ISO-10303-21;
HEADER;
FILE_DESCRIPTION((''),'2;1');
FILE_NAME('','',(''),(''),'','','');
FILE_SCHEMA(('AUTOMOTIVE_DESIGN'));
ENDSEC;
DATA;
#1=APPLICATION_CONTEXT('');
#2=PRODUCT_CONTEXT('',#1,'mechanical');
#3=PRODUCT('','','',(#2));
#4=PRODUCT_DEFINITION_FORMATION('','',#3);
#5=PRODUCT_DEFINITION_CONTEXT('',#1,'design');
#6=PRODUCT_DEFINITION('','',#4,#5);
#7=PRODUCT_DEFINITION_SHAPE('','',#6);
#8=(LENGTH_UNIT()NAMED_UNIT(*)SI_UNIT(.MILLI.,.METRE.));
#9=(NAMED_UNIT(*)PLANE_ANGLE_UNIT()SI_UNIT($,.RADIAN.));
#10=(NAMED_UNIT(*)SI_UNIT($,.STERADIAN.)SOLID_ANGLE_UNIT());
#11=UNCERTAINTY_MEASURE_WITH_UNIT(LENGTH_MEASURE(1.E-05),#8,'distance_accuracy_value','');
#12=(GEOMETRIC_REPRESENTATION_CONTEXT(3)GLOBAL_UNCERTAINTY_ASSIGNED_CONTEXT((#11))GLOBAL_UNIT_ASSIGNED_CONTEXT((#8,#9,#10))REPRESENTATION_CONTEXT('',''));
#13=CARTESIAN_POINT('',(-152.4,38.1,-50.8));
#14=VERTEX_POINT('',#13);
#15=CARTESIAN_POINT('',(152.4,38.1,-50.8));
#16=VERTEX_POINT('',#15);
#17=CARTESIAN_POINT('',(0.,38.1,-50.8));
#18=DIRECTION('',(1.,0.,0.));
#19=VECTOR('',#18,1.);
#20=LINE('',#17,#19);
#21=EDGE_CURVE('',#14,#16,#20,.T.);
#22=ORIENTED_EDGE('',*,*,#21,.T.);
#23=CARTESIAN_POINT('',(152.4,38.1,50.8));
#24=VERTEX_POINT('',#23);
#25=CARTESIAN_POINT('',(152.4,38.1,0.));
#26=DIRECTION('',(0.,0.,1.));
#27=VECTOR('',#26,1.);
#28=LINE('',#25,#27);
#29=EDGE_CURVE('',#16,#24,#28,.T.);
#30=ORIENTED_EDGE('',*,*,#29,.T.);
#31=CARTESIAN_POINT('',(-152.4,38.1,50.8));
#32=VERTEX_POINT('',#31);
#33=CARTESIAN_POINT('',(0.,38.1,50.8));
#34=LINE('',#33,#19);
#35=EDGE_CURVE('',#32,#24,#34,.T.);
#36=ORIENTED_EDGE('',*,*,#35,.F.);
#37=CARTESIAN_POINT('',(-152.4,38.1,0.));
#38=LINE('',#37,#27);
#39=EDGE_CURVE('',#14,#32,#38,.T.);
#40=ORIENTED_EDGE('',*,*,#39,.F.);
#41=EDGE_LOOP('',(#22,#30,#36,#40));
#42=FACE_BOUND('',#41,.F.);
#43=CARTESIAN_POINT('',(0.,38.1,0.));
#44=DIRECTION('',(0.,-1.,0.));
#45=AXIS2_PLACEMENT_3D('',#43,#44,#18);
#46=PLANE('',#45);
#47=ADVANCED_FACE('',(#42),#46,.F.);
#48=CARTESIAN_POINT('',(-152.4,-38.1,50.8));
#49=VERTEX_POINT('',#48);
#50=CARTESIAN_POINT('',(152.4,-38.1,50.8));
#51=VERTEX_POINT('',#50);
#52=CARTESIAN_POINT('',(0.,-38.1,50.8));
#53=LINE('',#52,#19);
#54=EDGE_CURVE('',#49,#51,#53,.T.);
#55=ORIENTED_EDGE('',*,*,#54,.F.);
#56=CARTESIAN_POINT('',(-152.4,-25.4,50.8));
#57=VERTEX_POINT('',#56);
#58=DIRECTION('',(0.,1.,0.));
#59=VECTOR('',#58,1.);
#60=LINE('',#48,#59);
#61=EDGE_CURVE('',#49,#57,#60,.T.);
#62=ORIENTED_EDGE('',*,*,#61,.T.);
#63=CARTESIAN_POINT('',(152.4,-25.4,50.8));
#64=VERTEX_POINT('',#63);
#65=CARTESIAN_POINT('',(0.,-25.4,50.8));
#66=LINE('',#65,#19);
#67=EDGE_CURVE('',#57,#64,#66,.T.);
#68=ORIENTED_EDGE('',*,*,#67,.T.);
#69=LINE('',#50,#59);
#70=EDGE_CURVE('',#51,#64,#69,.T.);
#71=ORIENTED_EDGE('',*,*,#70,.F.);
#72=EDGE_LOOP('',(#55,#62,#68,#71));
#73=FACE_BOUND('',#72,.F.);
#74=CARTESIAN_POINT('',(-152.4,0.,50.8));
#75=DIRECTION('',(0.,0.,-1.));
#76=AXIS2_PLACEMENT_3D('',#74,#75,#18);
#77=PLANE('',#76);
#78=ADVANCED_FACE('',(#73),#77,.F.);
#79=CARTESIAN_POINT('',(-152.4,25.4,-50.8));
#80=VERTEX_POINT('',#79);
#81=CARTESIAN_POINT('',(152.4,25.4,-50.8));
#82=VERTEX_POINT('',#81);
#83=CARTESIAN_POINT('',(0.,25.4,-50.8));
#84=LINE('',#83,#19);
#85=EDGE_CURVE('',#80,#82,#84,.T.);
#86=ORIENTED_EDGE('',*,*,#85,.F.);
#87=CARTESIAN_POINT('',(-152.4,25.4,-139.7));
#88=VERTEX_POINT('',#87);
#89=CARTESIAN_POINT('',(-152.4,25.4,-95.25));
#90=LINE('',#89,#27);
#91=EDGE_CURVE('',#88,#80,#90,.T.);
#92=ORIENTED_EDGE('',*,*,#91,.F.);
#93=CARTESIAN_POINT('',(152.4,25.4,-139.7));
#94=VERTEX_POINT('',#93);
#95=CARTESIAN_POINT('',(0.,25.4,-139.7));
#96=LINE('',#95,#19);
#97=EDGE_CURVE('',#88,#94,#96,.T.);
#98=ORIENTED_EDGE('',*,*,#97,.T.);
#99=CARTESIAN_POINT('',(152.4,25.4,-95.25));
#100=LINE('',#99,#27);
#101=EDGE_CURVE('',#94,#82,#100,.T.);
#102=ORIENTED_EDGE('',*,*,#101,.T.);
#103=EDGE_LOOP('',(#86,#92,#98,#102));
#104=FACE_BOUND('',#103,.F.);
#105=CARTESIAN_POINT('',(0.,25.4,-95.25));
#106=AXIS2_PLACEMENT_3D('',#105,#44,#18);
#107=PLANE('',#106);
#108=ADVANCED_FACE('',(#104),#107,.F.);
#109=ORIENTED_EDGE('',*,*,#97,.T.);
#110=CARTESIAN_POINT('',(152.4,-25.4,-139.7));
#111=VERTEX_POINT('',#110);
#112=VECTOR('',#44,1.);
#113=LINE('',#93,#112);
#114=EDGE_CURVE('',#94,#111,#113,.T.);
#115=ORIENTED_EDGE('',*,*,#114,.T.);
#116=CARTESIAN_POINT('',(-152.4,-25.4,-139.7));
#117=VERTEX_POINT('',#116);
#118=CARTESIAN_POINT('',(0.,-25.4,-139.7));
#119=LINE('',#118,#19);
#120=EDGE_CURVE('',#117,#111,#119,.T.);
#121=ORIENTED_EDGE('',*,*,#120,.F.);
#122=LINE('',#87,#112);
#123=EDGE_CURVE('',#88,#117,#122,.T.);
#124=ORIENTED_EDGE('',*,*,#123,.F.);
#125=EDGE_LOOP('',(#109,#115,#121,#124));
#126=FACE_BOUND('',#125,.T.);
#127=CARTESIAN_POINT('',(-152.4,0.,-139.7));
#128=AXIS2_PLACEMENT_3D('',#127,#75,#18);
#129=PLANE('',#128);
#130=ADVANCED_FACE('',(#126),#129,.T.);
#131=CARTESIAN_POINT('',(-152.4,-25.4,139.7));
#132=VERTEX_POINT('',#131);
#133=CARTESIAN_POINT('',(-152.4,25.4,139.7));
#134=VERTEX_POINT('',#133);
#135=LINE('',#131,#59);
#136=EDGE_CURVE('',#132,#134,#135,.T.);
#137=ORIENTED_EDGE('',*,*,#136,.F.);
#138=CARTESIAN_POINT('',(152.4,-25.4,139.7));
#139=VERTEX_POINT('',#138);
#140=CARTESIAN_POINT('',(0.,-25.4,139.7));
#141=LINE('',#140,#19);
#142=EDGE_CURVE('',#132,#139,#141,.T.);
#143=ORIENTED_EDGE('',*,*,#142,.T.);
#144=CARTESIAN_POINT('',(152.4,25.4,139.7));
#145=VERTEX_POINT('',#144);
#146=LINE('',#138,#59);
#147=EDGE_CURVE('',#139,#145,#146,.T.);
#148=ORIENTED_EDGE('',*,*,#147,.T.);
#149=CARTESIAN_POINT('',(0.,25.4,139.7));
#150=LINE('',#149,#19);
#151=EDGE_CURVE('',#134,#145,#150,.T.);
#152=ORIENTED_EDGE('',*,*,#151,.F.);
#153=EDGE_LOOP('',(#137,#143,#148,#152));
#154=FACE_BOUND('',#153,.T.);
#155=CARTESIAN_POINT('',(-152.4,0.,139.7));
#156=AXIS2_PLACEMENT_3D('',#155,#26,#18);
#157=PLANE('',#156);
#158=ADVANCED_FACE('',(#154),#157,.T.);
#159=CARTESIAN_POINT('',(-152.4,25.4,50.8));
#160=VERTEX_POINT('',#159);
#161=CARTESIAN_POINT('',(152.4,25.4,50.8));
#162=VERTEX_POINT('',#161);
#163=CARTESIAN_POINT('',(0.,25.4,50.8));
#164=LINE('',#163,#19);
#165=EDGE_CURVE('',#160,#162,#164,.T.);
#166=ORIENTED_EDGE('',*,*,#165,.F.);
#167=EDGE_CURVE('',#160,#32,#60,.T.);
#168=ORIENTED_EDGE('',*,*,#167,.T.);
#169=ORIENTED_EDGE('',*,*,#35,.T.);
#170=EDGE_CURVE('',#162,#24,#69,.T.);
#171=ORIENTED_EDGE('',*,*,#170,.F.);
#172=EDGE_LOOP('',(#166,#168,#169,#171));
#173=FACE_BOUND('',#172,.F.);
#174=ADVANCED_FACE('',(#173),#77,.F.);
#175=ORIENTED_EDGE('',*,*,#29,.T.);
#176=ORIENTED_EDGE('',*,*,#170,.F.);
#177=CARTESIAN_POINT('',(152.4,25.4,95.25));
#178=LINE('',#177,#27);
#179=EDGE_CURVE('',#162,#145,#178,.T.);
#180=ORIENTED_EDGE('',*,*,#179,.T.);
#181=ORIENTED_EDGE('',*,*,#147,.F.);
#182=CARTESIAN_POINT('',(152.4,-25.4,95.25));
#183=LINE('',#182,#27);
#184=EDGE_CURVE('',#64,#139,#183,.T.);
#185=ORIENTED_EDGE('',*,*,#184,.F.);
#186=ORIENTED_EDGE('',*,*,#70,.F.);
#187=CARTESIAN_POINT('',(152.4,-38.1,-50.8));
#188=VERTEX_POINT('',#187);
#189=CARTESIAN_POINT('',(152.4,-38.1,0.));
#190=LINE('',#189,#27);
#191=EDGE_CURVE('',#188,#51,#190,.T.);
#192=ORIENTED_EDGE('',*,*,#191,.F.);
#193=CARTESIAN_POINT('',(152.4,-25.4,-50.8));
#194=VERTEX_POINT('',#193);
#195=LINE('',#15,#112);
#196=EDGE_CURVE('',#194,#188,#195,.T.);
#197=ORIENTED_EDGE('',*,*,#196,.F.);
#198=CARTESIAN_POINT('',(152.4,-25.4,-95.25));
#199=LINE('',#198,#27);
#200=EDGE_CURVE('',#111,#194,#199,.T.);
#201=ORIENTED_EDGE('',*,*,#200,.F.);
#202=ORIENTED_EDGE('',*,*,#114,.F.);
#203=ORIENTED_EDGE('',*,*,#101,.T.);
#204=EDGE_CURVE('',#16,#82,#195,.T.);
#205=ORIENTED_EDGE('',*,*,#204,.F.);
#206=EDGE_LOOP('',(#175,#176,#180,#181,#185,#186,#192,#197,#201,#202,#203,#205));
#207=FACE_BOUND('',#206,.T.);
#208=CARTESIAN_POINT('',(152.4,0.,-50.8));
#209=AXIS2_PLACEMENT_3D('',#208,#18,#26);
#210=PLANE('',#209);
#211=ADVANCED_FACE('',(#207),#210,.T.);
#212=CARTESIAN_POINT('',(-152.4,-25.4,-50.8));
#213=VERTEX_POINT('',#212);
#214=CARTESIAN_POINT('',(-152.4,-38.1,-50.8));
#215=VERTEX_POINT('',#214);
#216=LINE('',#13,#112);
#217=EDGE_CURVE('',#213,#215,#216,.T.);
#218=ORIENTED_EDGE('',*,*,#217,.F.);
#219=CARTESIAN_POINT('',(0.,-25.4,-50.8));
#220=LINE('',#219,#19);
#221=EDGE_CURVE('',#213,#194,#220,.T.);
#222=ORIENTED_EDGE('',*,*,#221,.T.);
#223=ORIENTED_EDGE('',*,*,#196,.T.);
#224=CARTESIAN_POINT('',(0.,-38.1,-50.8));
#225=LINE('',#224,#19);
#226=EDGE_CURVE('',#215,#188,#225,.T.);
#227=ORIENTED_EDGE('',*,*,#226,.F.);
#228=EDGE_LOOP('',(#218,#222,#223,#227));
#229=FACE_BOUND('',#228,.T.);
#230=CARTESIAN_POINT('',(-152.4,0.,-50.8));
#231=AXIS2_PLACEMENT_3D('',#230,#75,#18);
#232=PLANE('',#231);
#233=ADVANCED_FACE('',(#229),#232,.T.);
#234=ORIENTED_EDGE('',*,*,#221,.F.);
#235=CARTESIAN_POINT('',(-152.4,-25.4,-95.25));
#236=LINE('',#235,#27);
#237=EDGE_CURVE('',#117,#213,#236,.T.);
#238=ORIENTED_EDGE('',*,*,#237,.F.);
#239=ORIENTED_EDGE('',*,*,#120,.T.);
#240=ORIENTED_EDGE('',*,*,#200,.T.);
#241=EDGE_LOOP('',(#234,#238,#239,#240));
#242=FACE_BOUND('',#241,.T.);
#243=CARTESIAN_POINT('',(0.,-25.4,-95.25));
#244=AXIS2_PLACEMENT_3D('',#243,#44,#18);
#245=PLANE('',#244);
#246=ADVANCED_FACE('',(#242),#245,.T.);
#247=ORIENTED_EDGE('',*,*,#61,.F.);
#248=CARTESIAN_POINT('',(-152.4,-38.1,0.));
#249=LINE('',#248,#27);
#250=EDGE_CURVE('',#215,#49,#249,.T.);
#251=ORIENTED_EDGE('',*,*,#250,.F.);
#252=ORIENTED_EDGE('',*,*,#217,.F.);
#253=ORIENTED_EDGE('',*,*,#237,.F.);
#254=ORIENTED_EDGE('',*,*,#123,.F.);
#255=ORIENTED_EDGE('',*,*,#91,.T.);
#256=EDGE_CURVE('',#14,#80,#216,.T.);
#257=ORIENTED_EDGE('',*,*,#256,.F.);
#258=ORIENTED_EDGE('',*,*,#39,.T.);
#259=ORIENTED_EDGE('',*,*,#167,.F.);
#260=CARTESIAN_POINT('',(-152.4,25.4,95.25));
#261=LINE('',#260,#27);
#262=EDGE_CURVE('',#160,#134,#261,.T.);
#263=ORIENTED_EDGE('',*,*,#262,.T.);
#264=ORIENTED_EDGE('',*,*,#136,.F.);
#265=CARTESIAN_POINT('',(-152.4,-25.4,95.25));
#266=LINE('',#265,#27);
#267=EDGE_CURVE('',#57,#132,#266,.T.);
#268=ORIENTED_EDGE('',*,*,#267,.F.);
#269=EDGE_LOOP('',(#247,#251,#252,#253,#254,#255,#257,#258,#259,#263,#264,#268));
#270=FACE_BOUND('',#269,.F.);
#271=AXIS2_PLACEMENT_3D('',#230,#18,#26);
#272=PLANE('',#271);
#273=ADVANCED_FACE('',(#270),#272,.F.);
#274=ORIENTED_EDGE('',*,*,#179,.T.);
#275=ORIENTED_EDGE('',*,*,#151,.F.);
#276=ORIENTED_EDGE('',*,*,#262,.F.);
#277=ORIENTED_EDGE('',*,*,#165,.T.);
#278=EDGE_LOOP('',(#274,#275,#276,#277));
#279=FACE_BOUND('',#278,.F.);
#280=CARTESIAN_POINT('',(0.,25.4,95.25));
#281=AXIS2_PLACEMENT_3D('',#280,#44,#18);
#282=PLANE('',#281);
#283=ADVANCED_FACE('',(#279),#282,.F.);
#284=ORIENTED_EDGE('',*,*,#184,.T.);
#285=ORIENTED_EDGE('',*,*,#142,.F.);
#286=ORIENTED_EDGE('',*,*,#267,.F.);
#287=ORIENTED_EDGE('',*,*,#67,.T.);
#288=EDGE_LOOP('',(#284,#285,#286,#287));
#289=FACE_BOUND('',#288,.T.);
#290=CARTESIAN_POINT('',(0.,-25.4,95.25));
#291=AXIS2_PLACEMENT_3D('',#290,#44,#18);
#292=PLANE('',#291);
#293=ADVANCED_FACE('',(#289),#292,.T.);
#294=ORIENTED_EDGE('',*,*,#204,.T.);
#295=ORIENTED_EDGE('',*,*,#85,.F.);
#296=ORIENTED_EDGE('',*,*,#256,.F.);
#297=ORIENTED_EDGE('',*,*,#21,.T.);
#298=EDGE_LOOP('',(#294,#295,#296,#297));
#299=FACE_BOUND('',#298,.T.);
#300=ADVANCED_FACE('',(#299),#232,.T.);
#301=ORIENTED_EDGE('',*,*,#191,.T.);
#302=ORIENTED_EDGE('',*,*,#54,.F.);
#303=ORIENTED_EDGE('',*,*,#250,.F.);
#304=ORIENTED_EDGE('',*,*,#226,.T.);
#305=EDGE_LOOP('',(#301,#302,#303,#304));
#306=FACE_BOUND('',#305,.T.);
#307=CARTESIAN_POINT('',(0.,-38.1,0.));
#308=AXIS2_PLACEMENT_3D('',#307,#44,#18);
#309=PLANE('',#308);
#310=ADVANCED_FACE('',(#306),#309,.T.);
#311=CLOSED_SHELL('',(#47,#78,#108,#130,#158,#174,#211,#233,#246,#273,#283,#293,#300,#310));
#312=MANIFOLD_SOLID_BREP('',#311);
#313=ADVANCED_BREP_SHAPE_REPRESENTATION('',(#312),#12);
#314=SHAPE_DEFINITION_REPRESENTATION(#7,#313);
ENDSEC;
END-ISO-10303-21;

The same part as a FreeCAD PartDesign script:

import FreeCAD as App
import Part
import Sketcher
Q = App.Units.Quantity

doc = App.newDocument("Part")
body = doc.addObject("PartDesign::Body", "Body")

# Sketch on XZ plane
sketch1 = doc.addObject("Sketcher::SketchObject", "Sketch")
body.addObject(sketch1)
sketch1.AttachmentSupport = (doc.XZ_Plane, [""])
sketch1.MapMode = "FlatFace"
sketch1.addGeometry(Part.LineSegment(App.Vector(-152, 51, 0), App.Vector(-152, -51, 0)), False)
sketch1.addGeometry(Part.LineSegment(App.Vector(-152, -51, 0), App.Vector(152, -51, 0)), False)
sketch1.addGeometry(Part.LineSegment(App.Vector(152, -51, 0), App.Vector(152, 51, 0)), False)
sketch1.addGeometry(Part.LineSegment(App.Vector(152, 51, 0), App.Vector(-152, 51, 0)), False)
sketch1.addConstraint(Sketcher.Constraint("Coincident", 0, 2, 1, 1))
sketch1.addConstraint(Sketcher.Constraint("Coincident", 1, 2, 2, 1))
sketch1.addConstraint(Sketcher.Constraint("Coincident", 2, 2, 3, 1))
sketch1.addConstraint(Sketcher.Constraint("Coincident", 3, 2, 0, 1))
sketch1.addConstraint(Sketcher.Constraint("Vertical", 0))
sketch1.addConstraint(Sketcher.Constraint("Horizontal", 1))
sketch1.addConstraint(Sketcher.Constraint("Vertical", 2))
sketch1.addConstraint(Sketcher.Constraint("Horizontal", 3))
sketch1.addConstraint(Sketcher.Constraint("Symmetric", 0, 2, 2, 2, -1, 1))
sketch1.addConstraint(Sketcher.Constraint("DistanceX", 1, 1, 1, 2, Q("12 in")))
sketch1.addConstraint(Sketcher.Constraint("DistanceY", 0, 2, 0, 1, Q("4 in")))
pad1 = doc.addObject("PartDesign::Pad", "Pad")
body.addObject(pad1)
pad1.Profile = sketch1
pad1.Length = Q("3 in")
pad1.Midplane = True

# Sketch on XZ plane
sketch2 = doc.addObject("Sketcher::SketchObject", "Sketch001")
body.addObject(sketch2)
sketch2.AttachmentSupport = (doc.XZ_Plane, [""])
sketch2.MapMode = "FlatFace"
sketch2.addGeometry(Part.LineSegment(App.Vector(-152, 140, 0), App.Vector(-152, 51, 0)), False)
sketch2.addGeometry(Part.LineSegment(App.Vector(-152, 51, 0), App.Vector(152, 51, 0)), False)
sketch2.addGeometry(Part.LineSegment(App.Vector(152, 51, 0), App.Vector(152, 140, 0)), False)
sketch2.addGeometry(Part.LineSegment(App.Vector(152, 140, 0), App.Vector(-152, 140, 0)), False)
sketch2.addGeometry(Part.LineSegment(App.Vector(-152, -51, 0), App.Vector(-152, -140, 0)), False)
sketch2.addGeometry(Part.LineSegment(App.Vector(-152, -140, 0), App.Vector(152, -140, 0)), False)
sketch2.addGeometry(Part.LineSegment(App.Vector(152, -140, 0), App.Vector(152, -51, 0)), False)
sketch2.addGeometry(Part.LineSegment(App.Vector(152, -51, 0), App.Vector(-152, -51, 0)), False)
sketch2.addConstraint(Sketcher.Constraint("Coincident", 0, 2, 1, 1))
sketch2.addConstraint(Sketcher.Constraint("Coincident", 1, 2, 2, 1))
sketch2.addConstraint(Sketcher.Constraint("Coincident", 2, 2, 3, 1))
sketch2.addConstraint(Sketcher.Constraint("Coincident", 3, 2, 0, 1))
sketch2.addConstraint(Sketcher.Constraint("Coincident", 4, 2, 5, 1))
sketch2.addConstraint(Sketcher.Constraint("Coincident", 5, 2, 6, 1))
sketch2.addConstraint(Sketcher.Constraint("Coincident", 6, 2, 7, 1))
sketch2.addConstraint(Sketcher.Constraint("Coincident", 7, 2, 4, 1))
sketch2.addConstraint(Sketcher.Constraint("Vertical", 0))
sketch2.addConstraint(Sketcher.Constraint("Horizontal", 1))
sketch2.addConstraint(Sketcher.Constraint("Vertical", 2))
sketch2.addConstraint(Sketcher.Constraint("Horizontal", 3))
sketch2.addConstraint(Sketcher.Constraint("Vertical", 4))
sketch2.addConstraint(Sketcher.Constraint("Horizontal", 5))
sketch2.addConstraint(Sketcher.Constraint("Vertical", 6))
sketch2.addConstraint(Sketcher.Constraint("Horizontal", 7))
sketch2.addConstraint(Sketcher.Constraint("Symmetric", 2, 2, 4, 2, -1, 1))
sketch2.addConstraint(Sketcher.Constraint("Symmetric", 0, 2, 6, 2, -1, 1))
sketch2.addConstraint(Sketcher.Constraint("Vertical", 3, 2, 4, 2))
sketch2.addConstraint(Sketcher.Constraint("DistanceX", 1, 1, 1, 2, Q("12 in")))
sketch2.addConstraint(Sketcher.Constraint("DistanceY", 0, 2, 0, 1, Q("3.5 in")))
sketch2.addConstraint(Sketcher.Constraint("DistanceY", -1, 1, 0, 2, Q("2 in")))
pad2 = doc.addObject("PartDesign::Pad", "Pad001")
body.addObject(pad2)
pad2.Profile = sketch2
pad2.Length = Q("2 in")
pad2.Midplane = True

doc.recompute()
